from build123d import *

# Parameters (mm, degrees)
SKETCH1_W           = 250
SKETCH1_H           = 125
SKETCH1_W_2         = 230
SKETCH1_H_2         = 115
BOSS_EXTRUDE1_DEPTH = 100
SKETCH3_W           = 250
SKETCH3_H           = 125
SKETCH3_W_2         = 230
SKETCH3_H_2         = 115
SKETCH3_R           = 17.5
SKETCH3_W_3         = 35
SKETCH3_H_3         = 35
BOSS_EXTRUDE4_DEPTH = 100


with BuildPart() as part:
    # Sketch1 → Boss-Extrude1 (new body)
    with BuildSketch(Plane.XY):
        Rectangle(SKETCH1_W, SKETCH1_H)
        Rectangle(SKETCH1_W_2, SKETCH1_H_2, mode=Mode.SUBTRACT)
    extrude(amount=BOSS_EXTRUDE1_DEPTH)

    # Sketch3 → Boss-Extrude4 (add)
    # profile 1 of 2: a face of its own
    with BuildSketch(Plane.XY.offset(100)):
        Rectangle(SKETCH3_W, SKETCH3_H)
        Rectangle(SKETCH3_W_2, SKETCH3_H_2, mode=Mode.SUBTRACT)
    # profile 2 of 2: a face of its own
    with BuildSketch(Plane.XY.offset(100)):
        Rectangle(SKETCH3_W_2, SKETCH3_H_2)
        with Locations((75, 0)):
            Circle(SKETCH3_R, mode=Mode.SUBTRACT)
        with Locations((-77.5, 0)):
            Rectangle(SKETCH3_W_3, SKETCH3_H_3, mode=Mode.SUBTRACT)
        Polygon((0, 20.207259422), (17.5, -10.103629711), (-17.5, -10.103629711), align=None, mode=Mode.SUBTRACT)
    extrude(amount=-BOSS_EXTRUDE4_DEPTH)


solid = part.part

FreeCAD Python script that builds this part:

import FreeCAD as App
import Part
import Sketcher
from FreeCAD import Vector
Q = App.Units.Quantity


def add_polygon(sketch, points):
    """Adds a closed chain of lines whose ends are joined by coincident constraints."""
    first, n = sketch.GeometryCount, len(points)
    for a, b in zip(points, points[1:] + points[:1]):
        sketch.addGeometry(Part.LineSegment(App.Vector(*a, 0), App.Vector(*b, 0)), False)
    for i in range(n):
        sketch.addConstraint(Sketcher.Constraint("Coincident", first + i, 2, first + (i + 1) % n, 1))

doc = App.newDocument("Part")
params = doc.addObject("Spreadsheet::Sheet", "Params")
for row, (alias, value) in enumerate([
    ("sketch1_width", "250 mm"),
    ("sketch1_width2", "230 mm"),
    ("sketch1_height", "125 mm"),
    ("sketch1_height2", "115 mm"),
    ("pad1_length", "100 mm"),
    ("sketch2_diameter", "35 mm"),
    ("sketch2_width", "250 mm"),
    ("sketch2_width2", "35 mm"),
    ("sketch2_height", "125 mm"),
    ("pad2_length", "100 mm"),
], start=1):
    params.set(f"A{row}", alias)
    params.set(f"B{row}", "=" + value)
    params.setAlias(f"B{row}", alias)

body = doc.addObject("PartDesign::Body", "Body")

sketch1 = body.newObject("Sketcher::SketchObject", "Sketch")
sketch1.AttachmentSupport = (doc.getObject("XY_Plane"), [""])
sketch1.MapMode = "FlatFace"
add_polygon(sketch1, [(-125, 62), (-125, -62), (125, -62), (125, 62)])
add_polygon(sketch1, [(115, -58), (-115, -58), (-115, 58), (115, 58)])
sketch1.addConstraint([
    Sketcher.Constraint("Vertical", 0),
    Sketcher.Constraint("Horizontal", 1),
    Sketcher.Constraint("Vertical", 2),
    Sketcher.Constraint("Horizontal", 3),
    Sketcher.Constraint("Horizontal", 4),
    Sketcher.Constraint("Vertical", 5),
    Sketcher.Constraint("Horizontal", 6),
    Sketcher.Constraint("Vertical", 7),
    Sketcher.Constraint("Symmetric", 0, 2, 2, 2, -1, 1),
    Sketcher.Constraint("Symmetric", 4, 2, 6, 2, -1, 1),
    Sketcher.Constraint("DistanceX", 1, 1, 1, 2, 250.0),
    Sketcher.Constraint("DistanceX", 4, 2, 4, 1, 230.0),
    Sketcher.Constraint("DistanceY", 0, 2, 0, 1, 125.0),
    Sketcher.Constraint("DistanceY", 5, 1, 5, 2, 115.0),
])
sketch1.setExpression("Constraints[18]", "Params.sketch1_width")
sketch1.setExpression("Constraints[19]", "Params.sketch1_width2")
sketch1.setExpression("Constraints[20]", "Params.sketch1_height")
sketch1.setExpression("Constraints[21]", "Params.sketch1_height2")
pad1 = body.newObject("PartDesign::Pad", "Pad")
pad1.Profile = sketch1
pad1.setExpression("Length", "Params.pad1_length")

sketch2 = body.newObject("Sketcher::SketchObject", "Sketch001")
sketch2.AttachmentSupport = (doc.getObject("XY_Plane"), [""])
sketch2.MapMode = "FlatFace"
sketch2.AttachmentOffset = App.Placement(Vector(0, 0, 100), App.Rotation())
add_polygon(sketch2, [(-125, 62), (-125, -62), (125, -62), (125, 62)])
sketch2.addGeometry(Part.Circle(Vector(75, 0, 0), Vector(0, 0, 1), 18), False)
add_polygon(sketch2, [(0, 20), (18, -10), (-18, -10)])
add_polygon(sketch2, [(-60, -18), (-95, -18), (-95, 18), (-60, 18)])
sketch2.addConstraint([
    Sketcher.Constraint("Vertical", 0),
    Sketcher.Constraint("Horizontal", 1),
    Sketcher.Constraint("Vertical", 2),
    Sketcher.Constraint("Horizontal", 3),
    Sketcher.Constraint("Horizontal", 6),
    Sketcher.Constraint("Horizontal", 8),
    Sketcher.Constraint("Vertical", 9),
    Sketcher.Constraint("Horizontal", 10),
    Sketcher.Constraint("Vertical", 11),
    Sketcher.Constraint("Symmetric", 0, 2, 2, 2, -1, 1),
    Sketcher.Constraint("PointOnObject", 4, 3, -1),
    Sketcher.Constraint("PointOnObject", 7, 2, -2),
    Sketcher.Constraint("Equal", 6, 8),
    Sketcher.Constraint("Equal", 10, 9),
    Sketcher.Constraint("Equal", 5, 7),
    Sketcher.Constraint("Diameter", 4, 35.0),
    Sketcher.Constraint("DistanceX", 1, 1, 1, 2, 250.0),
    Sketcher.Constraint("DistanceX", 6, 2, 6, 1, 35.0),
    Sketcher.Constraint("DistanceY", 0, 2, 0, 1, 125.0),
    Sketcher.Constraint("Angle", 5, Q("-60 deg")),
    Sketcher.Constraint("DistanceX", -1, 1, 4, 3, 75.0),
    Sketcher.Constraint("DistanceX", 8, 2, -1, 1, 95.0),
    Sketcher.Constraint("DistanceY", 0, 2, 8, 2, 45.0),
    Sketcher.Constraint("DistanceY", 5, 2, -1, 1, 10.10363),
])
sketch2.setExpression("Constraints[26]", "Params.sketch2_diameter")
sketch2.setExpression("Constraints[27]", "Params.sketch2_width")
sketch2.setExpression("Constraints[28]", "Params.sketch2_width2")
sketch2.setExpression("Constraints[29]", "Params.sketch2_height")
pad2 = body.newObject("PartDesign::Pad", "Pad001")
pad2.Profile = sketch2
pad2.setExpression("Length", "Params.pad2_length")
pad2.Reversed = True

doc.recompute()
